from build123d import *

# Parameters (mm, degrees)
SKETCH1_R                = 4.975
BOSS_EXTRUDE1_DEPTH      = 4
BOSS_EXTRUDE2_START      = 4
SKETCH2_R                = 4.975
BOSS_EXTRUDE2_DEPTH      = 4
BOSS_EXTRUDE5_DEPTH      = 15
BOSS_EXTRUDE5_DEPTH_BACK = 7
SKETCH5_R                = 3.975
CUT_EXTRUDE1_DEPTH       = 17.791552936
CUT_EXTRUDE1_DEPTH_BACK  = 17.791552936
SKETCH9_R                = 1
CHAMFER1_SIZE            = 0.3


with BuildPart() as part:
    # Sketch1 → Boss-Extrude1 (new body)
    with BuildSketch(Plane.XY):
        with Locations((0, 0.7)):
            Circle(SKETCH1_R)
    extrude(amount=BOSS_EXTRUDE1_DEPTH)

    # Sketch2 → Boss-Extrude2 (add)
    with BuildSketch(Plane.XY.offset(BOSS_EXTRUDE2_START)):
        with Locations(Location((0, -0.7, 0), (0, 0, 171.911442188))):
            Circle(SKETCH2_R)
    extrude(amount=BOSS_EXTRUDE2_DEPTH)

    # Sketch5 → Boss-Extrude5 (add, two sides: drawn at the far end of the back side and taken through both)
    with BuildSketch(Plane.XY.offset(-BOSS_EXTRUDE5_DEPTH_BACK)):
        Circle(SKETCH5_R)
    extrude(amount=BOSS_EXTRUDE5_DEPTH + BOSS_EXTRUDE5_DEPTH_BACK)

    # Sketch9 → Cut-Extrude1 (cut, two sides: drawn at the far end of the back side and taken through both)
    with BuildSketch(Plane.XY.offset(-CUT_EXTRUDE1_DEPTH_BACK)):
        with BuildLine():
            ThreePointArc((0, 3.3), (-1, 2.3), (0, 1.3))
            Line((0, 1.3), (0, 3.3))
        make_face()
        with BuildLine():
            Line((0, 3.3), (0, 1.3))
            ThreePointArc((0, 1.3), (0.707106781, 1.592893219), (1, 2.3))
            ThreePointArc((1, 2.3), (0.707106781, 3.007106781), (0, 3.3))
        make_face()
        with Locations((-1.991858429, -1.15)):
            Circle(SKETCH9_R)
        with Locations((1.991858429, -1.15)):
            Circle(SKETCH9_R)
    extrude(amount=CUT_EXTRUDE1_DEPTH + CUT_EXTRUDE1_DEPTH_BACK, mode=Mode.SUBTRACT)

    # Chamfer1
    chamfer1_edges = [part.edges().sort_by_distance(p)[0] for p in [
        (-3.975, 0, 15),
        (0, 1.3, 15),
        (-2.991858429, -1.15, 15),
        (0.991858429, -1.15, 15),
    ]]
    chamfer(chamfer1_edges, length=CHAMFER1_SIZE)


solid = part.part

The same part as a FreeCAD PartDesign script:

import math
import FreeCAD as App
import Part
import Sketcher


def edges_at(feature, points):
    """Names of the edges that pass closest to the given points."""
    edges = feature.Shape.Edges
    near = lambda p: min(range(len(edges)), key=lambda i: edges[i].distToShape(Part.Vertex(*p))[0])
    return sorted({f"Edge{near(p) + 1}" for p in points})

doc = App.newDocument("Part")
params = doc.addObject("Spreadsheet::Sheet", "Params")
for row, (alias, value) in enumerate([
    ("sketch1_diameter", "9.95 mm"),
    ("pad1_length", "4 mm"),
    ("sketch2_diameter", "9.95 mm"),
    ("pad2_length", "4 mm"),
    ("sketch3_diameter", "7.95 mm"),
    ("pad3_length", "15 mm"),
    ("pad3_length2", "7 mm"),
    ("sketch4_diameter", "2 mm"),
    ("chamfer_size", "0.3 mm"),
], start=1):
    params.set(f"A{row}", alias)
    params.set(f"B{row}", "=" + value)
    params.setAlias(f"B{row}", alias)

body = doc.addObject("PartDesign::Body", "Body")

sketch1 = body.newObject("Sketcher::SketchObject", "Sketch")
sketch1.AttachmentSupport = (doc.getObject("XY_Plane"), [""])
sketch1.MapMode = "FlatFace"
sketch1.addGeometry(Part.Circle(App.Vector(0, 0.7, 0), App.Vector(0, 0, 1), 5), False)
sketch1.addConstraint([
    Sketcher.Constraint("PointOnObject", 0, 3, -2),
    Sketcher.Constraint("Diameter", 0, 9.95),
    Sketcher.Constraint("DistanceY", -1, 1, 0, 3, 0.7),
])
sketch1.setExpression("Constraints[1]", "Params.sketch1_diameter")
pad1 = body.newObject("PartDesign::Pad", "Pad")
pad1.Profile = sketch1
pad1.setExpression("Length", "Params.pad1_length")

sketch2 = body.newObject("Sketcher::SketchObject", "Sketch001")
sketch2.AttachmentSupport = (doc.getObject("XY_Plane"), [""])
sketch2.MapMode = "FlatFace"
sketch2.AttachmentOffset = App.Placement(App.Vector(0, 0, 4), App.Rotation())
sketch2.addGeometry(Part.Circle(App.Vector(0, -0.7, 0), App.Vector(0, 0, 1), 5), False)
sketch2.addConstraint([
    Sketcher.Constraint("PointOnObject", 0, 3, -2),
    Sketcher.Constraint("Diameter", 0, 9.95),
    Sketcher.Constraint("DistanceY", 0, 3, -1, 1, 0.7),
])
sketch2.setExpression("Constraints[1]", "Params.sketch2_diameter")
pad2 = body.newObject("PartDesign::Pad", "Pad001")
pad2.Profile = sketch2
pad2.setExpression("Length", "Params.pad2_length")

sketch3 = body.newObject("Sketcher::SketchObject", "Sketch002")
sketch3.AttachmentSupport = (doc.getObject("XY_Plane"), [""])
sketch3.MapMode = "FlatFace"
sketch3.addGeometry(Part.Circle(App.Vector(0, 0, 0), App.Vector(0, 0, 1), 4), False)
sketch3.addConstraint([
    Sketcher.Constraint("Coincident", 0, 3, -1, 1),
    Sketcher.Constraint("Diameter", 0, 7.95),
])
sketch3.setExpression("Constraints[1]", "Params.sketch3_diameter")
pad3 = body.newObject("PartDesign::Pad", "Pad002")
pad3.Profile = sketch3
pad3.Type = "TwoLengths"
pad3.setExpression("Length", "Params.pad3_length")
pad3.setExpression("Length2", "Params.pad3_length2")

sketch4 = body.newObject("Sketcher::SketchObject", "Sketch003")
sketch4.AttachmentSupport = (doc.getObject("XY_Plane"), [""])
sketch4.MapMode = "FlatFace"
sketch4.addGeometry([
    Part.ArcOfCircle(Part.Circle(App.Vector(0, 2.3, 0), App.Vector(0, 0, 1), 1), math.radians(90), math.radians(270)),
    Part.ArcOfCircle(Part.Circle(App.Vector(0, 2.3, 0), App.Vector(0, 0, 1), 1), math.radians(-90), math.radians(0)),
    Part.ArcOfCircle(Part.Circle(App.Vector(0, 2.3, 0), App.Vector(0, 0, 1), 1), math.radians(0), math.radians(90)),
    Part.Circle(App.Vector(-2, -1.1, 0), App.Vector(0, 0, 1), 1),
    Part.Circle(App.Vector(2, -1.1, 0), App.Vector(0, 0, 1), 1),
], False)
sketch4.addConstraint([
    Sketcher.Constraint("Tangent", 0, 2, 1, 1),
    Sketcher.Constraint("Tangent", 1, 2, 2, 1),
    Sketcher.Constraint("Tangent", 2, 2, 0, 1),
    Sketcher.Constraint("Equal", 2, 3),
    Sketcher.Constraint("Equal", 3, 4),
    Sketcher.Constraint("Symmetric", 3, 3, 4, 3, -2),
    Sketcher.Constraint("PointOnObject", 0, 3, -2),
    Sketcher.Constraint("PointOnObject", 0, 2, -2),
    Sketcher.Constraint("PointOnObject", 2, 2, -2),
    Sketcher.Constraint("Horizontal", 2, 3, 1, 2),
    Sketcher.Constraint("Diameter", 3, 2.0),
    Sketcher.Constraint("DistanceY", -1, 1, 0, 3, 2.3),
    Sketcher.Constraint("DistanceY", 3, 3, -1, 1, 1.15),
    Sketcher.Constraint("DistanceX", 3, 3, -1, 1, 1.991858),
])
sketch4.setExpression("Constraints[10]", "Params.sketch4_diameter")
pocket1 = body.newObject("PartDesign::Pocket", "Pocket")
pocket1.Profile = sketch4
pocket1.Type = "ThroughAll"
pocket1.Midplane = True
doc.recompute()

chamfer = body.newObject("PartDesign::Chamfer", "Chamfer")
chamfer.Base = (pocket1, edges_at(pocket1, [
    (-3.975, 0, 15),
    (0.707, 1.593, 15),
    (-2.992, -1.15, 15),
    (0.992, -1.15, 15),
]))
chamfer.setExpression("Size", "Params.chamfer_size")

doc.recompute()
